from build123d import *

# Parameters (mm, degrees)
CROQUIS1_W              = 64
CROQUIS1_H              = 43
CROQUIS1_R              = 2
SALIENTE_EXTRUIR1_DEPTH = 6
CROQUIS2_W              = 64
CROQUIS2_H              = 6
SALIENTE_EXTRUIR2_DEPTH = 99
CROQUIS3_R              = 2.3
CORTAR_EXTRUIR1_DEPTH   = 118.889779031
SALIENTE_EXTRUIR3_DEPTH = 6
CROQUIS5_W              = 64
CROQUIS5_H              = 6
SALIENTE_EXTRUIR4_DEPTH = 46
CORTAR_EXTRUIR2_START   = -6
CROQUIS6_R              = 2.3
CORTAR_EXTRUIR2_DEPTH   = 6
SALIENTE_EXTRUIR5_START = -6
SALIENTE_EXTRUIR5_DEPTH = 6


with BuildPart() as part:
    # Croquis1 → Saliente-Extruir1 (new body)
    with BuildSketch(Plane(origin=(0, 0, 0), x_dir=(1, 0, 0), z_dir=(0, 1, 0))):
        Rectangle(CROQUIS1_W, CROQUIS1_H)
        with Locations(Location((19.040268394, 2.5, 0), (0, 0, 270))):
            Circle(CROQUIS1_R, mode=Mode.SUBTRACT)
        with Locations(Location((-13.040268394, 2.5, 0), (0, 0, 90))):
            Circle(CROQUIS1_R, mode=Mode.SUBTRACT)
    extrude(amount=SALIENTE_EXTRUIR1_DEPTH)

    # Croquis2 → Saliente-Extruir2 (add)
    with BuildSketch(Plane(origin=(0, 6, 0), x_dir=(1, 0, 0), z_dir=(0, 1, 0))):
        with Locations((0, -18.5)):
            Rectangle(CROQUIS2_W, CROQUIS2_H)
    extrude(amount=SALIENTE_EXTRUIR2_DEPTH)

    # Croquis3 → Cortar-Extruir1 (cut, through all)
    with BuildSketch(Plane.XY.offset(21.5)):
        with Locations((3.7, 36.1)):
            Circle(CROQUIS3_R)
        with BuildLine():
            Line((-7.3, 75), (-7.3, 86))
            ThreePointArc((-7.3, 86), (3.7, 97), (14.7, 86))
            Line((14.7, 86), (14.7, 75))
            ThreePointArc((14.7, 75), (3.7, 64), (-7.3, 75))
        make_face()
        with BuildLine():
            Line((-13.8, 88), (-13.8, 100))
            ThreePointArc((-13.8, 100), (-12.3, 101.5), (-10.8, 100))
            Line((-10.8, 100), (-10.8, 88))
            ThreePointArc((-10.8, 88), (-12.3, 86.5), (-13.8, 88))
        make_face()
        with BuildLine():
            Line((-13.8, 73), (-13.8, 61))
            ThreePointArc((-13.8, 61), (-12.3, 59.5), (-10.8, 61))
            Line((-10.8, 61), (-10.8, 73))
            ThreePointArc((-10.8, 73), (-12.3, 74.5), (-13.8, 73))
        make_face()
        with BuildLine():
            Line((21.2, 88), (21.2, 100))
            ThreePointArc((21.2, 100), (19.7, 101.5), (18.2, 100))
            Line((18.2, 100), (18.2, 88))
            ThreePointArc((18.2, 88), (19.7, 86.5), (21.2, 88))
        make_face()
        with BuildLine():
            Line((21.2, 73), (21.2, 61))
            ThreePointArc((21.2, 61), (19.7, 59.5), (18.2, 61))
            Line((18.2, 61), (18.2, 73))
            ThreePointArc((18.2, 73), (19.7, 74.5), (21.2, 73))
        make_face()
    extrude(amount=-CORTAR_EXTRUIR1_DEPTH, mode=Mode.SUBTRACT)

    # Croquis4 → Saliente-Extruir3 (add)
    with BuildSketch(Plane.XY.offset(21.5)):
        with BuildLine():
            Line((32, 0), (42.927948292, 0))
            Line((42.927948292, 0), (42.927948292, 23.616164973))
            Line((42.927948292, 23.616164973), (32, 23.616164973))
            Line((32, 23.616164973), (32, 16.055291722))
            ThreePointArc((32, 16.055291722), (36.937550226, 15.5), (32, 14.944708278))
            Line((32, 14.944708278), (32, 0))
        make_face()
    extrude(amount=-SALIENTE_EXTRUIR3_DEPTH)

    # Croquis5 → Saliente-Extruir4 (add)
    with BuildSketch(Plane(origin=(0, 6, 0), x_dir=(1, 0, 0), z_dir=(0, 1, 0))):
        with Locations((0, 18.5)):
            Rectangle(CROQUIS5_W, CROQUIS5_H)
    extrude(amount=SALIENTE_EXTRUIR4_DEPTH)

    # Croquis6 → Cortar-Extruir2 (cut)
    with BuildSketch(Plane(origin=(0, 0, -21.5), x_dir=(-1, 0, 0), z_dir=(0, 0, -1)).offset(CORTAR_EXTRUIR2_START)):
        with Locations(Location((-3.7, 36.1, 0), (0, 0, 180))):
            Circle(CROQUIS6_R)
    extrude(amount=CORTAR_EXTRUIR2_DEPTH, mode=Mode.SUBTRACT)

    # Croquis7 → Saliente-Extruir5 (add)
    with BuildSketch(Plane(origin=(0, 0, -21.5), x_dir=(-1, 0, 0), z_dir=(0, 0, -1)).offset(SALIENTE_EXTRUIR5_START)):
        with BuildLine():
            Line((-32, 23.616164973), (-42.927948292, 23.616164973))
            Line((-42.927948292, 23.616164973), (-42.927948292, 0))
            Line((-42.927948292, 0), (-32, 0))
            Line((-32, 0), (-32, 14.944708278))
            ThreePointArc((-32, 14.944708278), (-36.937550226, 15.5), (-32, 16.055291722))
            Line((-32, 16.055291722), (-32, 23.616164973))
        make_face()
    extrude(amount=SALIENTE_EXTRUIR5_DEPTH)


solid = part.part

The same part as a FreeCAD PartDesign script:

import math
import FreeCAD as App
import Part
import Sketcher

doc = App.newDocument("Part")
params = doc.addObject("Spreadsheet::Sheet", "Params")
for row, (alias, value) in enumerate([
    ("sketch1_diameter", "4 mm"),
    ("sketch1_width", "64 mm"),
    ("sketch1_height", "43 mm"),
    ("pad1_length", "6 mm"),
    ("sketch2_width", "64 mm"),
    ("sketch2_height", "6 mm"),
    ("pad2_length", "99 mm"),
    ("sketch3_radius", "11 mm"),
    ("sketch3_diameter", "4.6 mm"),
    ("sketch3_radius2", "1.5 mm"),
    ("sketch3_height", "11 mm"),
    ("sketch3_height2", "12 mm"),
    ("sketch4_radius", "2.5 mm"),
    ("pad3_length", "6 mm"),
    ("sketch5_width", "64 mm"),
    ("sketch5_height", "6 mm"),
    ("pad4_length", "46 mm"),
    ("sketch6_diameter", "4.6 mm"),
    ("pocket2_length", "6 mm"),
    ("sketch7_radius", "2.5 mm"),
    ("pad5_length", "6 mm"),
], start=1):
    params.set(f"A{row}", alias)
    params.set(f"B{row}", "=" + value)
    params.setAlias(f"B{row}", alias)

body = doc.addObject("PartDesign::Body", "Body")

# Sketch on XZ plane
sketch1 = body.newObject("Sketcher::SketchObject", "Sketch")
sketch1.AttachmentSupport = (doc.getObject("XZ_Plane"), [""])
sketch1.MapMode = "FlatFace"
sketch1.addGeometry(Part.LineSegment(App.Vector(-32, -21.5, 0), App.Vector(-32, 21.5, 0)), False)
sketch1.addGeometry(Part.LineSegment(App.Vector(-32, 21.5, 0), App.Vector(32, 21.5, 0)), False)
sketch1.addGeometry(Part.LineSegment(App.Vector(32, 21.5, 0), App.Vector(32, -21.5, 0)), False)
sketch1.addGeometry(Part.LineSegment(App.Vector(32, -21.5, 0), App.Vector(-32, -21.5, 0)), False)
sketch1.addGeometry(Part.Circle(App.Vector(-13.040268, -2.5, 0), App.Vector(0, 0, 1), 2), False)
sketch1.addGeometry(Part.Circle(App.Vector(19.040268, -2.5, 0), App.Vector(0, 0, 1), 2), False)
sketch1.addConstraint(Sketcher.Constraint("Coincident", 0, 2, 1, 1))
sketch1.addConstraint(Sketcher.Constraint("Coincident", 1, 2, 2, 1))
sketch1.addConstraint(Sketcher.Constraint("Coincident", 2, 2, 3, 1))
sketch1.addConstraint(Sketcher.Constraint("Coincident", 3, 2, 0, 1))
sketch1.addConstraint(Sketcher.Constraint("Vertical", 0))
sketch1.addConstraint(Sketcher.Constraint("Horizontal", 1))
sketch1.addConstraint(Sketcher.Constraint("Vertical", 2))
sketch1.addConstraint(Sketcher.Constraint("Horizontal", 3))
sketch1.addConstraint(Sketcher.Constraint("Equal", 4, 5))
sketch1.addConstraint(Sketcher.Constraint("Symmetric", 0, 2, 2, 2, -1, 1))
sketch1.addConstraint(Sketcher.Constraint("Horizontal", 4, 3, 5, 3))
sketch1.addConstraint(Sketcher.Constraint("Diameter", 4, 4.0))
sketch1.addConstraint(Sketcher.Constraint("DistanceX", 1, 1, 1, 2, 64.0))
sketch1.addConstraint(Sketcher.Constraint("DistanceY", 0, 1, 0, 2, 43.0))
sketch1.addConstraint(Sketcher.Constraint("DistanceY", 4, 3, 0, 2, 24.0))
sketch1.addConstraint(Sketcher.Constraint("DistanceX", 4, 3, -1, 1, 13.040268))
sketch1.addConstraint(Sketcher.Constraint("DistanceX", -1, 1, 5, 3, 19.040268))
sketch1.setExpression("Constraints[11]", "Params.sketch1_diameter")
sketch1.setExpression("Constraints[12]", "Params.sketch1_width")
sketch1.setExpression("Constraints[13]", "Params.sketch1_height")
pad1 = body.newObject("PartDesign::Pad", "Pad")
pad1.Profile = sketch1
pad1.setExpression("Length", "Params.pad1_length")
pad1.Reversed = True

# Sketch on XZ plane
sketch2 = body.newObject("Sketcher::SketchObject", "Sketch001")
sketch2.AttachmentSupport = (doc.getObject("XZ_Plane"), [""])
sketch2.MapMode = "FlatFace"
sketch2.AttachmentOffset = App.Placement(App.Vector(0, 0, -6), App.Rotation())
sketch2.addGeometry(Part.LineSegment(App.Vector(-32, 15.5, 0), App.Vector(-32, 21.5, 0)), False)
sketch2.addGeometry(Part.LineSegment(App.Vector(-32, 21.5, 0), App.Vector(32, 21.5, 0)), False)
sketch2.addGeometry(Part.LineSegment(App.Vector(32, 21.5, 0), App.Vector(32, 15.5, 0)), False)
sketch2.addGeometry(Part.LineSegment(App.Vector(32, 15.5, 0), App.Vector(-32, 15.5, 0)), False)
sketch2.addConstraint(Sketcher.Constraint("Coincident", 0, 2, 1, 1))
sketch2.addConstraint(Sketcher.Constraint("Coincident", 1, 2, 2, 1))
sketch2.addConstraint(Sketcher.Constraint("Coincident", 2, 2, 3, 1))
sketch2.addConstraint(Sketcher.Constraint("Coincident", 3, 2, 0, 1))
sketch2.addConstraint(Sketcher.Constraint("Vertical", 0))
sketch2.addConstraint(Sketcher.Constraint("Horizontal", 1))
sketch2.addConstraint(Sketcher.Constraint("Vertical", 2))
sketch2.addConstraint(Sketcher.Constraint("Horizontal", 3))
sketch2.addConstraint(Sketcher.Constraint("DistanceX", 1, 1, 1, 2, 64.0))
sketch2.addConstraint(Sketcher.Constraint("DistanceY", 0, 1, 0, 2, 6.0))
sketch2.addConstraint(Sketcher.Constraint("DistanceX", 0, 2, -1, 1, 32.0))
sketch2.addConstraint(Sketcher.Constraint("DistanceY", -1, 1, 0, 2, 21.5))
sketch2.setExpression("Constraints[8]", "Params.sketch2_width")
sketch2.setExpression("Constraints[9]", "Params.sketch2_height")
pad2 = body.newObject("PartDesign::Pad", "Pad001")
pad2.Profile = sketch2
pad2.setExpression("Length", "Params.pad2_length")
pad2.Reversed = True

# Sketch on XY plane
sketch3 = body.newObject("Sketcher::SketchObject", "Sketch002")
sketch3.AttachmentSupport = (doc.getObject("XY_Plane"), [""])
sketch3.MapMode = "FlatFace"
sketch3.AttachmentOffset = App.Placement(App.Vector(0, 0, 21.5), App.Rotation())
sketch3.addGeometry(Part.Circle(App.Vector(3.7, 36.1, 0), App.Vector(0, 0, 1), 2.3), False)
sketch3.addGeometry(Part.LineSegment(App.Vector(-7.3, 86, 0), App.Vector(-7.3, 75, 0)), False)
sketch3.addGeometry(Part.ArcOfCircle(Part.Circle(App.Vector(3.7, 75, 0), App.Vector(0, 0, 1), 11), math.radians(180), math.radians(360)), False)
sketch3.addGeometry(Part.LineSegment(App.Vector(14.7, 75, 0), App.Vector(14.7, 86, 0)), False)
sketch3.addGeometry(Part.ArcOfCircle(Part.Circle(App.Vector(3.7, 86, 0), App.Vector(0, 0, 1), 11), math.radians(0), math.radians(180)), False)
sketch3.addGeometry(Part.LineSegment(App.Vector(-13.8, 100, 0), App.Vector(-13.8, 88, 0)), False)
sketch3.addGeometry(Part.ArcOfCircle(Part.Circle(App.Vector(-12.3, 88, 0), App.Vector(0, 0, 1), 1.5), math.radians(180), math.radians(360)), False)
sketch3.addGeometry(Part.LineSegment(App.Vector(-10.8, 88, 0), App.Vector(-10.8, 100, 0)), False)
sketch3.addGeometry(Part.ArcOfCircle(Part.Circle(App.Vector(-12.3, 100, 0), App.Vector(0, 0, 1), 1.5), math.radians(0), math.radians(180)), False)
sketch3.addGeometry(Part.LineSegment(App.Vector(-13.8, 73, 0), App.Vector(-13.8, 61, 0)), False)
sketch3.addGeometry(Part.ArcOfCircle(Part.Circle(App.Vector(-12.3, 61, 0), App.Vector(0, 0, 1), 1.5), math.radians(180), math.radians(360)), False)
sketch3.addGeometry(Part.LineSegment(App.Vector(-10.8, 61, 0), App.Vector(-10.8, 73, 0)), False)
sketch3.addGeometry(Part.ArcOfCircle(Part.Circle(App.Vector(-12.3, 73, 0), App.Vector(0, 0, 1), 1.5), math.radians(0), math.radians(180)), False)
sketch3.addGeometry(Part.LineSegment(App.Vector(21.2, 88, 0), App.Vector(21.2, 100, 0)), False)
sketch3.addGeometry(Part.ArcOfCircle(Part.Circle(App.Vector(19.7, 100, 0), App.Vector(0, 0, 1), 1.5), math.radians(0), math.radians(180)), False)
sketch3.addGeometry(Part.LineSegment(App.Vector(18.2, 100, 0), App.Vector(18.2, 88, 0)), False)
sketch3.addGeometry(Part.ArcOfCircle(Part.Circle(App.Vector(19.7, 88, 0), App.Vector(0, 0, 1), 1.5), math.radians(180), math.radians(360)), False)
sketch3.addGeometry(Part.LineSegment(App.Vector(21.2, 61, 0), App.Vector(21.2, 73, 0)), False)
sketch3.addGeometry(Part.ArcOfCircle(Part.Circle(App.Vector(19.7, 73, 0), App.Vector(0, 0, 1), 1.5), math.radians(0), math.radians(180)), False)
sketch3.addGeometry(Part.LineSegment(App.Vector(18.2, 73, 0), App.Vector(18.2, 61, 0)), False)
sketch3.addGeometry(Part.ArcOfCircle(Part.Circle(App.Vector(19.7, 61, 0), App.Vector(0, 0, 1), 1.5), math.radians(180), math.radians(360)), False)
sketch3.addConstraint(Sketcher.Constraint("Tangent", 1, 2, 2, 1))
sketch3.addConstraint(Sketcher.Constraint("Tangent", 2, 2, 3, 1))
sketch3.addConstraint(Sketcher.Constraint("Tangent", 3, 2, 4, 1))
sketch3.addConstraint(Sketcher.Constraint("Tangent", 4, 2, 1, 1))
sketch3.addConstraint(Sketcher.Constraint("Tangent", 5, 2, 6, 1))
sketch3.addConstraint(Sketcher.Constraint("Tangent", 6, 2, 7, 1))
sketch3.addConstraint(Sketcher.Constraint("Tangent", 7, 2, 8, 1))
sketch3.addConstraint(Sketcher.Constraint("Tangent", 8, 2, 5, 1))
sketch3.addConstraint(Sketcher.Constraint("Tangent", 9, 2, 10, 1))
sketch3.addConstraint(Sketcher.Constraint("Tangent", 10, 2, 11, 1))
sketch3.addConstraint(Sketcher.Constraint("Tangent", 11, 2, 12, 1))
sketch3.addConstraint(Sketcher.Constraint("Tangent", 12, 2, 9, 1))
sketch3.addConstraint(Sketcher.Constraint("Tangent", 13, 2, 14, 1))
sketch3.addConstraint(Sketcher.Constraint("Tangent", 14, 2, 15, 1))
sketch3.addConstraint(Sketcher.Constraint("Tangent", 15, 2, 16, 1))
sketch3.addConstraint(Sketcher.Constraint("Tangent", 16, 2, 13, 1))
sketch3.addConstraint(Sketcher.Constraint("Tangent", 17, 2, 18, 1))
sketch3.addConstraint(Sketcher.Constraint("Tangent", 18, 2, 19, 1))
sketch3.addConstraint(Sketcher.Constraint("Tangent", 19, 2, 20, 1))
sketch3.addConstraint(Sketcher.Constraint("Tangent", 20, 2, 17, 1))
sketch3.addConstraint(Sketcher.Constraint("Vertical", 1))
sketch3.addConstraint(Sketcher.Constraint("Vertical", 3))
sketch3.addConstraint(Sketcher.Constraint("Vertical", 5))
sketch3.addConstraint(Sketcher.Constraint("Vertical", 7))
sketch3.addConstraint(Sketcher.Constraint("Vertical", 9))
sketch3.addConstraint(Sketcher.Constraint("Vertical", 11))
sketch3.addConstraint(Sketcher.Constraint("Vertical", 13))
sketch3.addConstraint(Sketcher.Constraint("Vertical", 15))
sketch3.addConstraint(Sketcher.Constraint("Vertical", 17))
sketch3.addConstraint(Sketcher.Constraint("Vertical", 19))
sketch3.addConstraint(Sketcher.Constraint("Equal", 8, 10))
sketch3.addConstraint(Sketcher.Constraint("Equal", 12, 14))
sketch3.addConstraint(Sketcher.Constraint("Equal", 16, 18))
sketch3.addConstraint(Sketcher.Constraint("Horizontal", 8, 3, 14, 3))
sketch3.addConstraint(Sketcher.Constraint("Horizontal", 6, 3, 16, 3))
sketch3.addConstraint(Sketcher.Constraint("Horizontal", 12, 3, 18, 3))
sketch3.addConstraint(Sketcher.Constraint("Horizontal", 10, 3, 20, 3))
sketch3.addConstraint(Sketcher.Constraint("Vertical", 0, 3, 2, 3))
sketch3.addConstraint(Sketcher.Constraint("Vertical", 8, 3, 10, 3))
sketch3.addConstraint(Sketcher.Constraint("Vertical", 16, 3, 18, 3))
sketch3.addConstraint(Sketcher.Constraint("Equal", 7, 9))
sketch3.addConstraint(Sketcher.Constraint("Radius", 2, 11.0))
sketch3.addConstraint(Sketcher.Constraint("Diameter", 0, 4.6))
sketch3.addConstraint(Sketcher.Constraint("Radius", 6, 1.5))
sketch3.addConstraint(Sketcher.Constraint("DistanceY", 1, 2, 1, 1, 11.0))
sketch3.addConstraint(Sketcher.Constraint("DistanceY", 5, 2, 5, 1, 12.0))
sketch3.addConstraint(Sketcher.Constraint("DistanceY", -1, 1, 2, 3, 75.0))
sketch3.addConstraint(Sketcher.Constraint("DistanceY", -1, 1, 6, 3, 88.0))
sketch3.addConstraint(Sketcher.Constraint("DistanceY", -1, 1, 10, 3, 61.0))
sketch3.addConstraint(Sketcher.Constraint("DistanceX", 6, 3, 4, 3, 16.0))
sketch3.addConstraint(Sketcher.Constraint("DistanceX", 4, 3, 14, 3, 16.0))
sketch3.addConstraint(Sketcher.Constraint("DistanceX", -1, 1, 0, 3, 3.7))
sketch3.addConstraint(Sketcher.Constraint("DistanceY", -1, 1, 0, 3, 36.1))
sketch3.setExpression("Constraints[41]", "Params.sketch3_radius")
sketch3.setExpression("Constraints[42]", "Params.sketch3_diameter")
sketch3.setExpression("Constraints[43]", "Params.sketch3_radius2")
sketch3.setExpression("Constraints[44]", "Params.sketch3_height")
sketch3.setExpression("Constraints[45]", "Params.sketch3_height2")
pocket1 = body.newObject("PartDesign::Pocket", "Pocket")
pocket1.Profile = sketch3
pocket1.Type = "ThroughAll"

# Sketch on XY plane
sketch4 = body.newObject("Sketcher::SketchObject", "Sketch003")
sketch4.AttachmentSupport = (doc.getObject("XY_Plane"), [""])
sketch4.MapMode = "FlatFace"
sketch4.AttachmentOffset = App.Placement(App.Vector(0, 0, 21.5), App.Rotation())
sketch4.addGeometry(Part.LineSegment(App.Vector(32, 0, 0), App.Vector(42.927948, 0, 0)), False)
sketch4.addGeometry(Part.LineSegment(App.Vector(42.927948, 0, 0), App.Vector(42.927948, 23.616165, 0)), False)
sketch4.addGeometry(Part.LineSegment(App.Vector(42.927948, 23.616165, 0), App.Vector(32, 23.616165, 0)), False)
sketch4.addGeometry(Part.LineSegment(App.Vector(32, 23.616165, 0), App.Vector(32, 16.055292, 0)), False)
sketch4.addGeometry(Part.ArcOfCircle(Part.Circle(App.Vector(34.43755, 15.5, 0), App.Vector(0, 0, 1), 2.5), math.radians(-167.166613), math.radians(167.166613)), False)
sketch4.addGeometry(Part.LineSegment(App.Vector(32, 14.944708, 0), App.Vector(32, 0, 0)), False)
sketch4.addConstraint(Sketcher.Constraint("Coincident", 0, 2, 1, 1))
sketch4.addConstraint(Sketcher.Constraint("Coincident", 1, 2, 2, 1))
sketch4.addConstraint(Sketcher.Constraint("Coincident", 2, 2, 3, 1))
sketch4.addConstraint(Sketcher.Constraint("Coincident", 3, 2, 4, 2))
sketch4.addConstraint(Sketcher.Constraint("Coincident", 4, 1, 5, 1))
sketch4.addConstraint(Sketcher.Constraint("Coincident", 5, 2, 0, 1))
sketch4.addConstraint(Sketcher.Constraint("Horizontal", 0))
sketch4.addConstraint(Sketcher.Constraint("Vertical", 1))
sketch4.addConstraint(Sketcher.Constraint("Horizontal", 2))
sketch4.addConstraint(Sketcher.Constraint("Vertical", 3))
sketch4.addConstraint(Sketcher.Constraint("Vertical", 5))
sketch4.addConstraint(Sketcher.Constraint("PointOnObject", 0, 2, -1))
sketch4.addConstraint(Sketcher.Constraint("Vertical", 3, 2, 4, 1))
sketch4.addConstraint(Sketcher.Constraint("Radius", 4, 2.5))
sketch4.addConstraint(Sketcher.Constraint("DistanceX", -1, 1, 2, 2, 32.0))
sketch4.addConstraint(Sketcher.Constraint("DistanceY", -1, 1, 4, 3, 15.5))
sketch4.addConstraint(Sketcher.Constraint("DistanceX", 0, 1, 0, 2, 10.927948))
sketch4.addConstraint(Sketcher.Constraint("DistanceY", 5, 2, 5, 1, 14.944708))
sketch4.addConstraint(Sketcher.Constraint("DistanceY", 1, 1, 1, 2, 23.616165))
sketch4.setExpression("Constraints[13]", "Params.sketch4_radius")
pad3 = body.newObject("PartDesign::Pad", "Pad002")
pad3.Profile = sketch4
pad3.setExpression("Length", "Params.pad3_length")
pad3.Reversed = True

# Sketch on XZ plane
sketch5 = body.newObject("Sketcher::SketchObject", "Sketch004")
sketch5.AttachmentSupport = (doc.getObject("XZ_Plane"), [""])
sketch5.MapMode = "FlatFace"
sketch5.AttachmentOffset = App.Placement(App.Vector(0, 0, -6), App.Rotation())
sketch5.addGeometry(Part.LineSegment(App.Vector(-32, -21.5, 0), App.Vector(-32, -15.5, 0)), False)
sketch5.addGeometry(Part.LineSegment(App.Vector(-32, -15.5, 0), App.Vector(32, -15.5, 0)), False)
sketch5.addGeometry(Part.LineSegment(App.Vector(32, -15.5, 0), App.Vector(32, -21.5, 0)), False)
sketch5.addGeometry(Part.LineSegment(App.Vector(32, -21.5, 0), App.Vector(-32, -21.5, 0)), False)
sketch5.addConstraint(Sketcher.Constraint("Coincident", 0, 2, 1, 1))
sketch5.addConstraint(Sketcher.Constraint("Coincident", 1, 2, 2, 1))
sketch5.addConstraint(Sketcher.Constraint("Coincident", 2, 2, 3, 1))
sketch5.addConstraint(Sketcher.Constraint("Coincident", 3, 2, 0, 1))
sketch5.addConstraint(Sketcher.Constraint("Vertical", 0))
sketch5.addConstraint(Sketcher.Constraint("Horizontal", 1))
sketch5.addConstraint(Sketcher.Constraint("Vertical", 2))
sketch5.addConstraint(Sketcher.Constraint("Horizontal", 3))
sketch5.addConstraint(Sketcher.Constraint("DistanceX", 1, 1, 1, 2, 64.0))
sketch5.addConstraint(Sketcher.Constraint("DistanceY", 0, 1, 0, 2, 6.0))
sketch5.addConstraint(Sketcher.Constraint("DistanceX", 0, 2, -1, 1, 32.0))
sketch5.addConstraint(Sketcher.Constraint("DistanceY", 0, 2, -1, 1, 15.5))
sketch5.setExpression("Constraints[8]", "Params.sketch5_width")
sketch5.setExpression("Constraints[9]", "Params.sketch5_height")
pad4 = body.newObject("PartDesign::Pad", "Pad003")
pad4.Profile = sketch5
pad4.setExpression("Length", "Params.pad4_length")
pad4.Reversed = True

# Sketch on XY plane
sketch6 = body.newObject("Sketcher::SketchObject", "Sketch005")
sketch6.AttachmentSupport = (doc.getObject("XY_Plane"), [""])
sketch6.MapMode = "FlatFace"
sketch6.AttachmentOffset = App.Placement(App.Vector(0, 0, -15.5), App.Rotation())
sketch6.addGeometry(Part.Circle(App.Vector(3.7, 36.1, 0), App.Vector(0, 0, 1), 2.3), False)
sketch6.addConstraint(Sketcher.Constraint("Diameter", 0, 4.6))
sketch6.addConstraint(Sketcher.Constraint("DistanceX", -1, 1, 0, 3, 3.7))
sketch6.addConstraint(Sketcher.Constraint("DistanceY", -1, 1, 0, 3, 36.1))
sketch6.setExpression("Constraints[0]", "Params.sketch6_diameter")
pocket2 = body.newObject("PartDesign::Pocket", "Pocket001")
pocket2.Profile = sketch6
pocket2.setExpression("Length", "Params.pocket2_length")

# Sketch on XY plane
sketch7 = body.newObject("Sketcher::SketchObject", "Sketch006")
sketch7.AttachmentSupport = (doc.getObject("XY_Plane"), [""])
sketch7.MapMode = "FlatFace"
sketch7.AttachmentOffset = App.Placement(App.Vector(0, 0, -15.5), App.Rotation())
sketch7.addGeometry(Part.LineSegment(App.Vector(32, 23.616165, 0), App.Vector(42.927948, 23.616165, 0)), False)
sketch7.addGeometry(Part.LineSegment(App.Vector(42.927948, 23.616165, 0), App.Vector(42.927948, 0, 0)), False)
sketch7.addGeometry(Part.LineSegment(App.Vector(42.927948, 0, 0), App.Vector(32, 0, 0)), False)
sketch7.addGeometry(Part.LineSegment(App.Vector(32, 0, 0), App.Vector(32, 14.944708, 0)), False)
sketch7.addGeometry(Part.ArcOfCircle(Part.Circle(App.Vector(34.43755, 15.5, 0), App.Vector(0, 0, 1), 2.5), math.radians(-167.166613), math.radians(167.166613)), False)
sketch7.addGeometry(Part.LineSegment(App.Vector(32, 16.055292, 0), App.Vector(32, 23.616165, 0)), False)
sketch7.addConstraint(Sketcher.Constraint("Coincident", 0, 2, 1, 1))
sketch7.addConstraint(Sketcher.Constraint("Coincident", 1, 2, 2, 1))
sketch7.addConstraint(Sketcher.Constraint("Coincident", 2, 2, 3, 1))
sketch7.addConstraint(Sketcher.Constraint("Coincident", 3, 2, 4, 1))
sketch7.addConstraint(Sketcher.Constraint("Coincident", 4, 2, 5, 1))
sketch7.addConstraint(Sketcher.Constraint("Coincident", 5, 2, 0, 1))
sketch7.addConstraint(Sketcher.Constraint("Horizontal", 0))
sketch7.addConstraint(Sketcher.Constraint("Vertical", 1))
sketch7.addConstraint(Sketcher.Constraint("Horizontal", 2))
sketch7.addConstraint(Sketcher.Constraint("Vertical", 3))
sketch7.addConstraint(Sketcher.Constraint("Vertical", 5))
sketch7.addConstraint(Sketcher.Constraint("PointOnObject", 1, 2, -1))
sketch7.addConstraint(Sketcher.Constraint("Vertical", 3, 2, 4, 2))
sketch7.addConstraint(Sketcher.Constraint("Radius", 4, 2.5))
sketch7.addConstraint(Sketcher.Constraint("DistanceX", -1, 1, 2, 2, 32.0))
sketch7.addConstraint(Sketcher.Constraint("DistanceY", -1, 1, 4, 3, 15.5))
sketch7.addConstraint(Sketcher.Constraint("DistanceX", 0, 1, 0, 2, 10.927948))
sketch7.addConstraint(Sketcher.Constraint("DistanceY", 3, 1, 3, 2, 14.944708))
sketch7.addConstraint(Sketcher.Constraint("DistanceY", 1, 2, 1, 1, 23.616165))
sketch7.setExpression("Constraints[13]", "Params.sketch7_radius")
pad5 = body.newObject("PartDesign::Pad", "Pad004")
pad5.Profile = sketch7
pad5.setExpression("Length", "Params.pad5_length")
pad5.Reversed = True

doc.recompute()
